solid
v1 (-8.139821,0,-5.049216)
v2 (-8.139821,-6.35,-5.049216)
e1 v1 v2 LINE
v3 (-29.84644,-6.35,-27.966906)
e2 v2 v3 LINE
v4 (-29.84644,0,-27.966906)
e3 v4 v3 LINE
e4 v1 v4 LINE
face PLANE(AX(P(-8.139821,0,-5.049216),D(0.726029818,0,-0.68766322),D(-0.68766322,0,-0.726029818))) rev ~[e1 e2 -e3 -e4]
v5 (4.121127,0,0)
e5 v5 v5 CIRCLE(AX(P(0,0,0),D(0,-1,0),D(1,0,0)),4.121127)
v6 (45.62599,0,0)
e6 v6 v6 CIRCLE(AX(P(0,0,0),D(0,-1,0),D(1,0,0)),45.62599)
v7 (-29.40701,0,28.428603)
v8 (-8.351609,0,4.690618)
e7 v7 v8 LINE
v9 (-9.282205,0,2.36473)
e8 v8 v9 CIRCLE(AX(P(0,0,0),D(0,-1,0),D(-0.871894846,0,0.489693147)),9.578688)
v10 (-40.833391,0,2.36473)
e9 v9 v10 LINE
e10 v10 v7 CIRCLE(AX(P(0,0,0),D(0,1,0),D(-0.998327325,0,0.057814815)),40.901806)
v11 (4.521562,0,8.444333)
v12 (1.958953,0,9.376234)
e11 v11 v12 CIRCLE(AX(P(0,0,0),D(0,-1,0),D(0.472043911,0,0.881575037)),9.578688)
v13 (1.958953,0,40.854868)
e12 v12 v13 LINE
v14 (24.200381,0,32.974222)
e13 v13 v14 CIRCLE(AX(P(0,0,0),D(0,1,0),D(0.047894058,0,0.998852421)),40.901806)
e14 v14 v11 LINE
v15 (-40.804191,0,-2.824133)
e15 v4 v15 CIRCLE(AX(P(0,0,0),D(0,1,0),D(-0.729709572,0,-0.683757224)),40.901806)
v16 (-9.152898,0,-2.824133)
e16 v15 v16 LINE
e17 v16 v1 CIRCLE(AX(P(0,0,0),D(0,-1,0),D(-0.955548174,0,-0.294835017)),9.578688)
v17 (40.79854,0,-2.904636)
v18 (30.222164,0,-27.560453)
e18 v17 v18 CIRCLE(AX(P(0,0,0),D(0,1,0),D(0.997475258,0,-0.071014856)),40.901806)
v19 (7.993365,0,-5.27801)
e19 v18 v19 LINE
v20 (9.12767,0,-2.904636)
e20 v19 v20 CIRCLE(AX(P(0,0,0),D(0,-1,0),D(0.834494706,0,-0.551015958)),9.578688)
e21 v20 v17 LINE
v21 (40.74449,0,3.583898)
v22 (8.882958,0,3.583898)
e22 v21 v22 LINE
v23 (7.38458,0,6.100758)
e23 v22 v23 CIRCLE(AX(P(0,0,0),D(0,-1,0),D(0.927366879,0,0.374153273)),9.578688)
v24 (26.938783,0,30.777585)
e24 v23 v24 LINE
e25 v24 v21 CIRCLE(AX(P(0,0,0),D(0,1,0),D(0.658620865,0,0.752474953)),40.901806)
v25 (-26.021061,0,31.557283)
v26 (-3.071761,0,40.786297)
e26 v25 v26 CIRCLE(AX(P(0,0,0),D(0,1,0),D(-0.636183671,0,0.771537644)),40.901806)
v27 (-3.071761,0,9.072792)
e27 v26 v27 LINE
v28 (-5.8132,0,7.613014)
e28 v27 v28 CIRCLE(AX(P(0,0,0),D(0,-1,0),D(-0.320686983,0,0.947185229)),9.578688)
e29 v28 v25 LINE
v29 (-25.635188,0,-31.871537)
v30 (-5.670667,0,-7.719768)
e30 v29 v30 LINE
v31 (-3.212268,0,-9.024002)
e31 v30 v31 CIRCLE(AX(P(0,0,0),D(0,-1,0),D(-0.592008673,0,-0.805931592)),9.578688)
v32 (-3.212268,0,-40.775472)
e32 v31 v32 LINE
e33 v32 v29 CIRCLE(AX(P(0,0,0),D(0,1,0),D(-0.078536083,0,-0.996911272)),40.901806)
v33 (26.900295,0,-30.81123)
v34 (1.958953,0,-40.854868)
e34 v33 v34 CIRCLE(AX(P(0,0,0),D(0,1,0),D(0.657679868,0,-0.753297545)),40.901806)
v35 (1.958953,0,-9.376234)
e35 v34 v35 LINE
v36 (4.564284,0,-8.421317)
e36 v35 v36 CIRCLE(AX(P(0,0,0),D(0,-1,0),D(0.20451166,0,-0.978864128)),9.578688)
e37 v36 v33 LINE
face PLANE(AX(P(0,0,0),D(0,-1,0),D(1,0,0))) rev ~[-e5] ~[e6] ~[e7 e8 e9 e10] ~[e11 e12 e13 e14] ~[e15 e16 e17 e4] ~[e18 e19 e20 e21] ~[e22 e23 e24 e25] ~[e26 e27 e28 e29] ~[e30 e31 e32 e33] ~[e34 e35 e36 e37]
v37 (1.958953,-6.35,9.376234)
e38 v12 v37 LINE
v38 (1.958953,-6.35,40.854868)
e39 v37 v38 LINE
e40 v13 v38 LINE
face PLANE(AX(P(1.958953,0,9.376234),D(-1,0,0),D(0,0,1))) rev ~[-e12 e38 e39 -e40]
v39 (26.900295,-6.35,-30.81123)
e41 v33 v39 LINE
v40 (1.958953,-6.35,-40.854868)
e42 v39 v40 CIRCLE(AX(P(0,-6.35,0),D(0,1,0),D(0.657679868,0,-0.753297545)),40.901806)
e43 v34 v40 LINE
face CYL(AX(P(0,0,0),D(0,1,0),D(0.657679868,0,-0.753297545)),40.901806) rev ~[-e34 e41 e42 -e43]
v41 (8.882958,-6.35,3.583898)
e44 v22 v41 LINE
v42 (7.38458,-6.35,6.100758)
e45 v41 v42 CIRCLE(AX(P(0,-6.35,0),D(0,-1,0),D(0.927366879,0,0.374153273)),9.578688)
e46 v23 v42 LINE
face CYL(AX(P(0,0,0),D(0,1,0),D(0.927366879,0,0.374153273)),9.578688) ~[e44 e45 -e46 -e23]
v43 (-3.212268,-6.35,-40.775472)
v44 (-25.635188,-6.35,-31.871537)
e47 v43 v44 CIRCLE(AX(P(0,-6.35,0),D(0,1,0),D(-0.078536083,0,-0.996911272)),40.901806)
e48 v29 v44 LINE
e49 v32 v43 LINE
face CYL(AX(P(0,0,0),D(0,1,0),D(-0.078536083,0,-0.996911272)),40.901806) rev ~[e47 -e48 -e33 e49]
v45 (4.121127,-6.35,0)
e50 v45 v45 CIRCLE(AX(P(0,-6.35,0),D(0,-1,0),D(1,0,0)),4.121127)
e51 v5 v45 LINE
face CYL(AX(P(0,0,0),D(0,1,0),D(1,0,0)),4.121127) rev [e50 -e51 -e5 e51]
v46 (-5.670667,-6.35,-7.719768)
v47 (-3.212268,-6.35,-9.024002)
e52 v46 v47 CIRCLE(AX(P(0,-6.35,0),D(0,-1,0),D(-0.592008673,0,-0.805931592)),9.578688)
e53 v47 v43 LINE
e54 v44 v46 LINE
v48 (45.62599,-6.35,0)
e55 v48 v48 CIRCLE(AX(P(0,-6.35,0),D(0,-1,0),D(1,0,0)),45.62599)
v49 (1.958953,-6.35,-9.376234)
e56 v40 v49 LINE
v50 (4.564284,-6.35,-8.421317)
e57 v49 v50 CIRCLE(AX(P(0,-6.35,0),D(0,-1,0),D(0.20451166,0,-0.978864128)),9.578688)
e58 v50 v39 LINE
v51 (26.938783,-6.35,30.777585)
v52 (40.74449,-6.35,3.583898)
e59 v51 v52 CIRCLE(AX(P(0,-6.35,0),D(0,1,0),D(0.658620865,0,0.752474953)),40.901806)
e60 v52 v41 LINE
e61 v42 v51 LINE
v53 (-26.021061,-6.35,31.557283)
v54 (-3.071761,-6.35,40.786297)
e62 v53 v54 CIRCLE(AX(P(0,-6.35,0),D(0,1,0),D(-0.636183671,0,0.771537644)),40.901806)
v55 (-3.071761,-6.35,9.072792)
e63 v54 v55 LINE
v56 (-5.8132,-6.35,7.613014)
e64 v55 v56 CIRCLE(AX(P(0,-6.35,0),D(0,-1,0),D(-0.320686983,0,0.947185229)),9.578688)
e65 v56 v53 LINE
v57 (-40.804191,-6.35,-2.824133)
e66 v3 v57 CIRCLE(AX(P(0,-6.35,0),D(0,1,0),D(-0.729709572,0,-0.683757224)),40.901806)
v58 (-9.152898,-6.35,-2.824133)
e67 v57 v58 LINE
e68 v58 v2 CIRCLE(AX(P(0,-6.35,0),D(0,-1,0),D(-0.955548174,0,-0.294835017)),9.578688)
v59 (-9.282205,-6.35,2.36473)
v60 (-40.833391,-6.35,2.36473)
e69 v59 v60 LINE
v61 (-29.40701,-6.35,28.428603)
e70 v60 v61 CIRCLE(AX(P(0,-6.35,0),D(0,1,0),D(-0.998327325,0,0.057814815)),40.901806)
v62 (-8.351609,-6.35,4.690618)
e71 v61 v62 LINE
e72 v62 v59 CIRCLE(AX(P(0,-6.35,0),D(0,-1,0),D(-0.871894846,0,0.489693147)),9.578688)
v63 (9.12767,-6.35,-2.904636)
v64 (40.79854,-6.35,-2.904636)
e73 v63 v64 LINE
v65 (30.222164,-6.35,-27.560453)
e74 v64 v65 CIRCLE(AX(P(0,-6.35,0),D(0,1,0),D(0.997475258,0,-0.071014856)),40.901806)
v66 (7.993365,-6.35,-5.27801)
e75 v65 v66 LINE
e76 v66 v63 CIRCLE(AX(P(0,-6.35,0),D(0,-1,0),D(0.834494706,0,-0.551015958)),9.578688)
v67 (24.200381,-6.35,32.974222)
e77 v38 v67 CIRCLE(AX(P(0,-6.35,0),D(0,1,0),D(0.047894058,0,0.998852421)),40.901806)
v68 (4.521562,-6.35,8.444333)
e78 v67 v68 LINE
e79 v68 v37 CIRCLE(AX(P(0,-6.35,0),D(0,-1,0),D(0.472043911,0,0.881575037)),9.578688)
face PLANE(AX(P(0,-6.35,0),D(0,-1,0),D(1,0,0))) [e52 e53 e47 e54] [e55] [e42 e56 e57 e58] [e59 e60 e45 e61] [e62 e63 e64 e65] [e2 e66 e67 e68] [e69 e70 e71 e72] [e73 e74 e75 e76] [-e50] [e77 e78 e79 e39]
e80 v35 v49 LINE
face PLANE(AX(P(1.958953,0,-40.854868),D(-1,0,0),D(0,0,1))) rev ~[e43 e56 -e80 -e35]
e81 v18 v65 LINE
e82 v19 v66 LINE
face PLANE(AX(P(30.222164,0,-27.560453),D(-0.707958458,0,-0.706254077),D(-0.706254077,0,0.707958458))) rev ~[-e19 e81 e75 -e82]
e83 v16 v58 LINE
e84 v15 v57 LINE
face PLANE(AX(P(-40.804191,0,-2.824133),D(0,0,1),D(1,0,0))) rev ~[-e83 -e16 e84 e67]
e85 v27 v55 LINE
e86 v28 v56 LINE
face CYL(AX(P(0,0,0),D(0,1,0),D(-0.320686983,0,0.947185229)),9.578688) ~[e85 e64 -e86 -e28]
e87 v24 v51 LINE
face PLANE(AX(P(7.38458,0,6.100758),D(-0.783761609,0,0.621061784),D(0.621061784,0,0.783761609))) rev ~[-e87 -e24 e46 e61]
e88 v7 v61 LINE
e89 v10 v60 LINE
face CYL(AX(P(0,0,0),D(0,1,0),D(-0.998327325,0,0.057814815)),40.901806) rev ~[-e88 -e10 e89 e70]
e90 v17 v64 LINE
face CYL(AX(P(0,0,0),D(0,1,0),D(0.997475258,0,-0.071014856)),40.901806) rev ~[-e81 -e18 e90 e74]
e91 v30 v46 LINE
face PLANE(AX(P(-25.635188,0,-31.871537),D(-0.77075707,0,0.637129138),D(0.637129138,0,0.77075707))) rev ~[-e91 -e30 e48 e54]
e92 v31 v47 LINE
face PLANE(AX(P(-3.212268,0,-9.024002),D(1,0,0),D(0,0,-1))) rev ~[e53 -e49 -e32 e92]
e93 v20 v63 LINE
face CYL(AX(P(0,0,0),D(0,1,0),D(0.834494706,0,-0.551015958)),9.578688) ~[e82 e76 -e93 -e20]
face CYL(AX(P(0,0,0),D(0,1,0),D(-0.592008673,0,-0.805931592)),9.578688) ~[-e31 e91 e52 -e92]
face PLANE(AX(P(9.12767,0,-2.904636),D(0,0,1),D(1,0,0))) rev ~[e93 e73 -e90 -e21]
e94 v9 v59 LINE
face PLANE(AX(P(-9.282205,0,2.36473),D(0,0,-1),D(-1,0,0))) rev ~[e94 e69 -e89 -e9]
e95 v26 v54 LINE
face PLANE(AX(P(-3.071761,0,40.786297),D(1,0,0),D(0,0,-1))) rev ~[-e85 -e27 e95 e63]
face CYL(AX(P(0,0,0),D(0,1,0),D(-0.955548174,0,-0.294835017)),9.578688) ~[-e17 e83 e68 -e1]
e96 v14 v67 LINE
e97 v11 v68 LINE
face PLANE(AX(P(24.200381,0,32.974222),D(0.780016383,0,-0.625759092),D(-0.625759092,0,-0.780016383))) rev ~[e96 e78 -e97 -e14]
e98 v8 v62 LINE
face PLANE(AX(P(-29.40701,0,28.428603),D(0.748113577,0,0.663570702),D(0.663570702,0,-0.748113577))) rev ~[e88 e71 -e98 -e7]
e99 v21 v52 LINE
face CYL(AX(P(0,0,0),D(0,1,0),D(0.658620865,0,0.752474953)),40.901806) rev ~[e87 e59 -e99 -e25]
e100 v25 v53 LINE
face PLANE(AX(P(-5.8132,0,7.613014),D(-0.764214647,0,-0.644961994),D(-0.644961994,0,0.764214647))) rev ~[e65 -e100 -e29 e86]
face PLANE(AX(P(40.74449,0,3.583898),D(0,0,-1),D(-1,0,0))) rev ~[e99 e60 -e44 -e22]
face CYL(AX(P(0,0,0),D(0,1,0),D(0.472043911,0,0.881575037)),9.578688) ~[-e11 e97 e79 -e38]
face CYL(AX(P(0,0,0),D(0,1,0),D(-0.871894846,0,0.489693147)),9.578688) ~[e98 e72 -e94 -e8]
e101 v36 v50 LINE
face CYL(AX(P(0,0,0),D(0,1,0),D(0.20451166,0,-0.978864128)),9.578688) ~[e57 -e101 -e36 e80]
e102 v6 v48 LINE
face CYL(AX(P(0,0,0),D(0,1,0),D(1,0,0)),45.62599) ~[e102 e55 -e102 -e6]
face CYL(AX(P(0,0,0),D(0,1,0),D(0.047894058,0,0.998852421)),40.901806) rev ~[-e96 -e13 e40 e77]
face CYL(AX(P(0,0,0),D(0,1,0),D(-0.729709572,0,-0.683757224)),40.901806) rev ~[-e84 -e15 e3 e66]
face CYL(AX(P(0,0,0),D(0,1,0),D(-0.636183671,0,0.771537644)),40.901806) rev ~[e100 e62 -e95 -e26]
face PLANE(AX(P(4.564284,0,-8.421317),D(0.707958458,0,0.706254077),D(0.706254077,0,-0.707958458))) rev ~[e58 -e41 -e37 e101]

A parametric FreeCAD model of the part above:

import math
import FreeCAD as App
import Part
import Sketcher

V = App.Vector
Q = App.Units.Quantity

doc = App.newDocument("Part")
body = doc.addObject("PartDesign::Body", "Body")

sketch1 = doc.addObject("Sketcher::SketchObject", "Sketch")
body.addObject(sketch1)
sketch1.AttachmentSupport = (doc.XZ_Plane, [""])
sketch1.MapMode = "FlatFace"
sketch1.addGeometry(Part.Circle(V(0, 0, 0), V(0, 0, 1), 45.62599), False)
sketch1.addGeometry(Part.ArcOfCircle(Part.Circle(V(0, 0, 0), V(0, 0, 1), 40.901806), math.radians(5.026817), math.radians(48.805223)), False)
sketch1.addGeometry(Part.LineSegment(V(40.74449, 3.583898, 0), V(8.882958, 3.583898, 0)), False)
sketch1.addGeometry(Part.ArcOfCircle(Part.Circle(V(0, 0, 0), V(0, 0, 1), 9.578688), math.radians(21.97199), math.radians(39.561759)), False)
sketch1.addGeometry(Part.LineSegment(V(7.38458, 6.100758, 0), V(26.938783, 30.777585, 0)), False)
sketch1.addGeometry(Part.ArcOfCircle(Part.Circle(V(0, 0, 0), V(0, 0, 1), 9.578688), math.radians(61.832947), math.radians(78.199086)), False)
sketch1.addGeometry(Part.LineSegment(V(1.958953, 9.376234, 0), V(1.958953, 40.854868, 0)), False)
sketch1.addGeometry(Part.ArcOfCircle(Part.Circle(V(0, 0, 0), V(0, 0, 1), 40.901806), math.radians(53.724378), math.radians(87.254822)), False)
sketch1.addGeometry(Part.LineSegment(V(24.200381, 32.974222, 0), V(4.521562, 8.444333, 0)), False)
sketch1.addGeometry(Part.ArcOfCircle(Part.Circle(V(0, 0, 0), V(0, 0, 1), 9.578688), math.radians(108.704476), math.radians(127.364889)), False)
sketch1.addGeometry(Part.LineSegment(V(-5.8132, 7.613014, 0), V(-26.021061, 31.557283, 0)), False)
sketch1.addGeometry(Part.ArcOfCircle(Part.Circle(V(0, 0, 0), V(0, 0, 1), 40.901806), math.radians(94.307017), math.radians(129.507831)), False)
sketch1.addGeometry(Part.LineSegment(V(-3.071761, 40.786297, 0), V(-3.071761, 9.072792, 0)), False)
sketch1.addGeometry(Part.ArcOfCircle(Part.Circle(V(0, 0, 0), V(0, 0, 1), 9.578688), math.radians(150.679585), math.radians(165.707384)), False)
sketch1.addGeometry(Part.LineSegment(V(-9.282205, 2.36473, 0), V(-40.833391, 2.36473, 0)), False)
sketch1.addGeometry(Part.ArcOfCircle(Part.Circle(V(0, 0, 0), V(0, 0, 1), 40.901806), math.radians(135.969182), math.radians(176.685607)), False)
sketch1.addGeometry(Part.LineSegment(V(-29.40701, 28.428603, 0), V(-8.351609, 4.690618, 0)), False)
sketch1.addGeometry(Part.ArcOfCircle(Part.Circle(V(0, 0, 0), V(0, 0, 1), 9.578688), math.radians(-162.852355), math.radians(-148.188241)), False)
sketch1.addGeometry(Part.LineSegment(V(-8.139821, -5.049216, 0), V(-29.84644, -27.966906, 0)), False)
sketch1.addGeometry(Part.ArcOfCircle(Part.Circle(V(0, 0, 0), V(0, 0, 1), 40.901806), math.radians(-176.040768), math.radians(-136.862052)), False)
sketch1.addGeometry(Part.LineSegment(V(-40.804191, -2.824133, 0), V(-9.152898, -2.824133, 0)), False)
sketch1.addGeometry(Part.ArcOfCircle(Part.Circle(V(0, 0, 0), V(0, 0, 1), 9.578688), math.radians(-126.29968), math.radians(-109.594169)), False)
sketch1.addGeometry(Part.LineSegment(V(-3.212268, -9.024002, 0), V(-3.212268, -40.775472, 0)), False)
sketch1.addGeometry(Part.ArcOfCircle(Part.Circle(V(0, 0, 0), V(0, 0, 1), 40.901806), math.radians(-128.810714), math.radians(-94.504425)), False)
sketch1.addGeometry(Part.LineSegment(V(-25.635188, -31.871537, 0), V(-5.670667, -7.719768, 0)), False)
sketch1.addGeometry(Part.ArcOfCircle(Part.Circle(V(0, 0, 0), V(0, 0, 1), 9.578688), math.radians(-78.199086), math.radians(-61.542674)), False)
sketch1.addGeometry(Part.LineSegment(V(4.564284, -8.421317, 0), V(26.900295, -30.81123, 0)), False)
sketch1.addGeometry(Part.ArcOfCircle(Part.Circle(V(0, 0, 0), V(0, 0, 1), 40.901806), math.radians(-87.254822), math.radians(-48.876835)), False)
sketch1.addGeometry(Part.LineSegment(V(1.958953, -40.854868, 0), V(1.958953, -9.376234, 0)), False)
sketch1.addGeometry(Part.ArcOfCircle(Part.Circle(V(0, 0, 0), V(0, 0, 1), 9.578688), math.radians(-33.43674), math.radians(-17.652274)), False)
sketch1.addGeometry(Part.LineSegment(V(9.12767, -2.904636, 0), V(40.79854, -2.904636, 0)), False)
sketch1.addGeometry(Part.ArcOfCircle(Part.Circle(V(0, 0, 0), V(0, 0, 1), 40.901806), math.radians(-42.36258), math.radians(-4.072279)), False)
sketch1.addGeometry(Part.LineSegment(V(30.222164, -27.560453, 0), V(7.993365, -5.27801, 0)), False)
sketch1.addGeometry(Part.Circle(V(0, 0, 0), V(0, 0, 1), 4.121127), False)
sketch1.addConstraint(Sketcher.Constraint("Coincident", 1, 1, 2, 1))
sketch1.addConstraint(Sketcher.Constraint("Coincident", 2, 2, 3, 1))
sketch1.addConstraint(Sketcher.Constraint("Coincident", 3, 2, 4, 1))
sketch1.addConstraint(Sketcher.Constraint("Coincident", 4, 2, 1, 2))
sketch1.addConstraint(Sketcher.Constraint("Coincident", 5, 2, 6, 1))
sketch1.addConstraint(Sketcher.Constraint("Coincident", 6, 2, 7, 2))
sketch1.addConstraint(Sketcher.Constraint("Coincident", 7, 1, 8, 1))
sketch1.addConstraint(Sketcher.Constraint("Coincident", 8, 2, 5, 1))
sketch1.addConstraint(Sketcher.Constraint("Coincident", 9, 2, 10, 1))
sketch1.addConstraint(Sketcher.Constraint("Coincident", 10, 2, 11, 2))
sketch1.addConstraint(Sketcher.Constraint("Coincident", 11, 1, 12, 1))
sketch1.addConstraint(Sketcher.Constraint("Coincident", 12, 2, 9, 1))
sketch1.addConstraint(Sketcher.Constraint("Coincident", 13, 2, 14, 1))
sketch1.addConstraint(Sketcher.Constraint("Coincident", 14, 2, 15, 2))
sketch1.addConstraint(Sketcher.Constraint("Coincident", 15, 1, 16, 1))
sketch1.addConstraint(Sketcher.Constraint("Coincident", 16, 2, 13, 1))
sketch1.addConstraint(Sketcher.Constraint("Coincident", 17, 2, 18, 1))
sketch1.addConstraint(Sketcher.Constraint("Coincident", 18, 2, 19, 2))
sketch1.addConstraint(Sketcher.Constraint("Coincident", 19, 1, 20, 1))
sketch1.addConstraint(Sketcher.Constraint("Coincident", 20, 2, 17, 1))
sketch1.addConstraint(Sketcher.Constraint("Coincident", 21, 2, 22, 1))
sketch1.addConstraint(Sketcher.Constraint("Coincident", 22, 2, 23, 2))
sketch1.addConstraint(Sketcher.Constraint("Coincident", 23, 1, 24, 1))
sketch1.addConstraint(Sketcher.Constraint("Coincident", 24, 2, 21, 1))
sketch1.addConstraint(Sketcher.Constraint("Coincident", 25, 2, 26, 1))
sketch1.addConstraint(Sketcher.Constraint("Coincident", 26, 2, 27, 2))
sketch1.addConstraint(Sketcher.Constraint("Coincident", 27, 1, 28, 1))
sketch1.addConstraint(Sketcher.Constraint("Coincident", 28, 2, 25, 1))
sketch1.addConstraint(Sketcher.Constraint("Coincident", 29, 2, 30, 1))
sketch1.addConstraint(Sketcher.Constraint("Coincident", 30, 2, 31, 2))
sketch1.addConstraint(Sketcher.Constraint("Coincident", 31, 1, 32, 1))
sketch1.addConstraint(Sketcher.Constraint("Coincident", 32, 2, 29, 1))
sketch1.addConstraint(Sketcher.Constraint("Horizontal", 2))
sketch1.addConstraint(Sketcher.Constraint("Vertical", 6))
sketch1.addConstraint(Sketcher.Constraint("Vertical", 12))
sketch1.addConstraint(Sketcher.Constraint("Horizontal", 14))
sketch1.addConstraint(Sketcher.Constraint("Horizontal", 20))
sketch1.addConstraint(Sketcher.Constraint("Vertical", 22))
sketch1.addConstraint(Sketcher.Constraint("Vertical", 28))
sketch1.addConstraint(Sketcher.Constraint("Horizontal", 30))
sketch1.addConstraint(Sketcher.Constraint("Coincident", 0, 3, -1, 1))
sketch1.addConstraint(Sketcher.Constraint("Coincident", 1, 3, -1, 1))
sketch1.addConstraint(Sketcher.Constraint("Coincident", 3, 3, -1, 1))
sketch1.addConstraint(Sketcher.Constraint("Coincident", 5, 3, -1, 1))
sketch1.addConstraint(Sketcher.Constraint("Coincident", 7, 3, -1, 1))
sketch1.addConstraint(Sketcher.Constraint("Coincident", 9, 3, -1, 1))
sketch1.addConstraint(Sketcher.Constraint("Coincident", 11, 3, -1, 1))
sketch1.addConstraint(Sketcher.Constraint("Coincident", 13, 3, -1, 1))
sketch1.addConstraint(Sketcher.Constraint("Coincident", 15, 3, -1, 1))
sketch1.addConstraint(Sketcher.Constraint("Coincident", 17, 3, -1, 1))
sketch1.addConstraint(Sketcher.Constraint("Coincident", 19, 3, -1, 1))
sketch1.addConstraint(Sketcher.Constraint("Coincident", 21, 3, -1, 1))
sketch1.addConstraint(Sketcher.Constraint("Coincident", 23, 3, -1, 1))
sketch1.addConstraint(Sketcher.Constraint("Coincident", 25, 3, -1, 1))
sketch1.addConstraint(Sketcher.Constraint("Coincident", 27, 3, -1, 1))
sketch1.addConstraint(Sketcher.Constraint("Coincident", 29, 3, -1, 1))
sketch1.addConstraint(Sketcher.Constraint("Coincident", 31, 3, -1, 1))
sketch1.addConstraint(Sketcher.Constraint("Coincident", 33, 3, -1, 1))
sketch1.addConstraint(Sketcher.Constraint("Equal", 3, 5))
sketch1.addConstraint(Sketcher.Constraint("Equal", 1, 7))
sketch1.addConstraint(Sketcher.Constraint("Equal", 5, 9))
sketch1.addConstraint(Sketcher.Constraint("Equal", 7, 11))
sketch1.addConstraint(Sketcher.Constraint("Equal", 9, 13))
sketch1.addConstraint(Sketcher.Constraint("Equal", 11, 15))
sketch1.addConstraint(Sketcher.Constraint("Equal", 13, 17))
sketch1.addConstraint(Sketcher.Constraint("Equal", 15, 19))
sketch1.addConstraint(Sketcher.Constraint("Equal", 17, 21))
sketch1.addConstraint(Sketcher.Constraint("Equal", 19, 23))
sketch1.addConstraint(Sketcher.Constraint("Equal", 21, 25))
sketch1.addConstraint(Sketcher.Constraint("Equal", 23, 27))
sketch1.addConstraint(Sketcher.Constraint("Equal", 25, 29))
sketch1.addConstraint(Sketcher.Constraint("Equal", 27, 31))
sketch1.addConstraint(Sketcher.Constraint("Parallel", 26, 32))
sketch1.addConstraint(Sketcher.Constraint("Vertical", 6, 2, 27, 1))
sketch1.addConstraint(Sketcher.Constraint("Diameter", 0, Q("91.251979 mm")))
sketch1.addConstraint(Sketcher.Constraint("Radius", 3, Q("9.578688 mm")))
sketch1.addConstraint(Sketcher.Constraint("Diameter", 33, Q("8.242255 mm")))
sketch1.addConstraint(Sketcher.Constraint("Radius", 1, Q("40.901806 mm")))
sketch1.addConstraint(Sketcher.Constraint("DistanceX", 2, 2, 2, 1, Q("31.861531 mm")))
sketch1.addConstraint(Sketcher.Constraint("DistanceX", 30, 1, 30, 2, Q("31.67087 mm")))
sketch1.addConstraint(Sketcher.Constraint("DistanceY", 22, 2, 22, 1, Q("31.75147 mm")))
sketch1.addConstraint(Sketcher.Constraint("DistanceX", 9, 2, -1, 1, Q("5.8132 mm")))
sketch1.addConstraint(Sketcher.Constraint("DistanceX", 20, 2, -1, 1, Q("9.152898 mm")))
sketch1.addConstraint(Sketcher.Constraint("DistanceX", 3, 2, 7, 1, Q("16.815801 mm")))
sketch1.addConstraint(Sketcher.Constraint("DistanceY", 8, 2, 5, 2, Q("0.931902 mm")))
sketch1.addConstraint(Sketcher.Constraint("DistanceX", 10, 2, 11, 1, Q("22.949301 mm")))
sketch1.addConstraint(Sketcher.Constraint("DistanceX", 14, 2, 19, 1, Q("0.029199 mm")))
sketch1.addConstraint(Sketcher.Constraint("DistanceX", 24, 2, 21, 2, Q("2.458399 mm")))
sketch1.addConstraint(Sketcher.Constraint("Distance", 18, Q("31.565769 mm")))
sketch1.addConstraint(Sketcher.Constraint("DistanceY", 6, 1, 6, 2, Q("31.478634 mm")))
sketch1.addConstraint(Sketcher.Constraint("DistanceY", 12, 2, 12, 1, Q("31.713505 mm")))
sketch1.addConstraint(Sketcher.Constraint("DistanceX", -1, 1, 3, 2, Q("7.38458 mm")))
sketch1.addConstraint(Sketcher.Constraint("DistanceX", 15, 1, -1, 1, Q("29.40701 mm")))
sketch1.addConstraint(Sketcher.Constraint("DistanceX", 16, 2, -1, 1, Q("8.351609 mm")))
sketch1.addConstraint(Sketcher.Constraint("DistanceX", 17, 2, -1, 1, Q("8.139821 mm")))
sketch1.addConstraint(Sketcher.Constraint("DistanceX", 23, 1, -1, 1, Q("25.635188 mm")))
sketch1.addConstraint(Sketcher.Constraint("DistanceY", 26, 2, -1, 1, Q("30.81123 mm")))
sketch1.addConstraint(Sketcher.Constraint("DistanceY", 32, 2, -1, 1, Q("5.27801 mm")))
sketch1.addConstraint(Sketcher.Constraint("DistanceX", 6, 2, 4, 2, Q("24.97983 mm")))
sketch1.addConstraint(Sketcher.Constraint("DistanceX", 21, 2, 25, 2, Q("7.776552 mm")))
pad1 = doc.addObject("PartDesign::Pad", "Pad")
body.addObject(pad1)
pad1.Profile = sketch1
pad1.Length = Q("0.25 in")

doc.recompute()
